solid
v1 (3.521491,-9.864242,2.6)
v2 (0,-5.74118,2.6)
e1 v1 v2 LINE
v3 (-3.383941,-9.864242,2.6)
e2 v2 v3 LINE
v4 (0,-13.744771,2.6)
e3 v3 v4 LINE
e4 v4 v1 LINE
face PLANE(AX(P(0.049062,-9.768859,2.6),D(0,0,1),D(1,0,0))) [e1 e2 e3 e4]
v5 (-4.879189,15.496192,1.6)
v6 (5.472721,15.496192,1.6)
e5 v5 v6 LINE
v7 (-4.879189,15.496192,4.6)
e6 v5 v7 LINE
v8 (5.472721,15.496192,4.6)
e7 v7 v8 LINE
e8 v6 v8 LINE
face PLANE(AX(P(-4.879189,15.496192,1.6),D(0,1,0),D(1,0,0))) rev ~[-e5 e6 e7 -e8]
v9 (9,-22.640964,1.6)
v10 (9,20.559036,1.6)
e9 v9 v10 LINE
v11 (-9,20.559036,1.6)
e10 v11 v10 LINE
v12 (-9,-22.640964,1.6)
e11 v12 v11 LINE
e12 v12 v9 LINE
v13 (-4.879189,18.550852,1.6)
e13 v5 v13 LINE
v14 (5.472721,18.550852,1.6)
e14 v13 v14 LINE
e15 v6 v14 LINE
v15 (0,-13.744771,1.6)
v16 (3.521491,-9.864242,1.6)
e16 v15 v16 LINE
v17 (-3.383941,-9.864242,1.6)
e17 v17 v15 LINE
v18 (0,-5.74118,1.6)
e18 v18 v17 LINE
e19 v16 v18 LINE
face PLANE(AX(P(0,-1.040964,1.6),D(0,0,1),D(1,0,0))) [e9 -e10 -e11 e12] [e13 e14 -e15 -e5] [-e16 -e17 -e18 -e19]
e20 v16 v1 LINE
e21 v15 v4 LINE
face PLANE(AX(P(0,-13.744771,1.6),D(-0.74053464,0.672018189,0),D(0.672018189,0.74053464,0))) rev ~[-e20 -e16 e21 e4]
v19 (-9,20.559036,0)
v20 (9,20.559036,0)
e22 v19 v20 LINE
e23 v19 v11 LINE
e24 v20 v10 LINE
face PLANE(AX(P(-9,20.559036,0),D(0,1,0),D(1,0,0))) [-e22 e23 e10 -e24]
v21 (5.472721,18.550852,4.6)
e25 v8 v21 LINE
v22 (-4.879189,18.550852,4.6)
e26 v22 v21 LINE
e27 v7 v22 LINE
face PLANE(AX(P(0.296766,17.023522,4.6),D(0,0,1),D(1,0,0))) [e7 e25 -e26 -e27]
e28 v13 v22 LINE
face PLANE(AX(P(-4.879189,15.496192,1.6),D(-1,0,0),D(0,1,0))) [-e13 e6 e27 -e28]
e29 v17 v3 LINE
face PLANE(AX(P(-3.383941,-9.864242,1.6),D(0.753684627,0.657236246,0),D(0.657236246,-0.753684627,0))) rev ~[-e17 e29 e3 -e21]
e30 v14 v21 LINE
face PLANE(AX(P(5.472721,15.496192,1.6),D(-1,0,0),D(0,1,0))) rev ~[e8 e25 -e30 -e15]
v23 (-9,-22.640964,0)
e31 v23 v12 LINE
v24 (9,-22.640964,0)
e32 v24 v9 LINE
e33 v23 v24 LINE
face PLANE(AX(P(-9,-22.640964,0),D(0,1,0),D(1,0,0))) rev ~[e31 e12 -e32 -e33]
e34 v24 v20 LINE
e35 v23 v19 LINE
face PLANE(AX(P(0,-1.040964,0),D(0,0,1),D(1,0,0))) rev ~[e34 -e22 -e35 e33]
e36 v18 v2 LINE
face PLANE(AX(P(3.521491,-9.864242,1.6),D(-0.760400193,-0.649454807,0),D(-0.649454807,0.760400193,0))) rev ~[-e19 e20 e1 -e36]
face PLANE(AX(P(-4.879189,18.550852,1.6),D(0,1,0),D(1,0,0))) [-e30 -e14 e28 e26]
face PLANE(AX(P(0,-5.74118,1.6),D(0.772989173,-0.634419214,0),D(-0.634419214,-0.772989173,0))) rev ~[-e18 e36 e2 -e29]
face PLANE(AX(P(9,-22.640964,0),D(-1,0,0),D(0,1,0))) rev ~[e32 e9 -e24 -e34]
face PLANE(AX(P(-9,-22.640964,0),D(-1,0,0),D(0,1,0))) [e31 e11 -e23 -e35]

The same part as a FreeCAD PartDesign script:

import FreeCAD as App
import Part
import Sketcher

V = App.Vector

doc = App.newDocument("Part")
body = doc.addObject("PartDesign::Body", "Body")

# Sketch on XY plane
sketch1 = doc.addObject("Sketcher::SketchObject", "Sketch")
body.addObject(sketch1)
sketch1.AttachmentSupport = (doc.XY_Plane, [""])
sketch1.MapMode = "FlatFace"
sketch1.addGeometry(Part.LineSegment(V(-9, 20.559036, 0), V(-9, -22.640964, 0)), False)
sketch1.addGeometry(Part.LineSegment(V(-9, -22.640964, 0), V(9, -22.640964, 0)), False)
sketch1.addGeometry(Part.LineSegment(V(9, -22.640964, 0), V(9, 20.559036, 0)), False)
sketch1.addGeometry(Part.LineSegment(V(9, 20.559036, 0), V(-9, 20.559036, 0)), False)
sketch1.addConstraint(Sketcher.Constraint("Coincident", 0, 2, 1, 1))
sketch1.addConstraint(Sketcher.Constraint("Coincident", 1, 2, 2, 1))
sketch1.addConstraint(Sketcher.Constraint("Coincident", 2, 2, 3, 1))
sketch1.addConstraint(Sketcher.Constraint("Coincident", 3, 2, 0, 1))
sketch1.addConstraint(Sketcher.Constraint("Vertical", 0))
sketch1.addConstraint(Sketcher.Constraint("Horizontal", 1))
sketch1.addConstraint(Sketcher.Constraint("Vertical", 2))
sketch1.addConstraint(Sketcher.Constraint("Horizontal", 3))
sketch1.addConstraint(Sketcher.Constraint("DistanceX", 1, 1, 1, 2, 18.0))
sketch1.addConstraint(Sketcher.Constraint("DistanceY", 0, 2, 0, 1, 43.2))
sketch1.addConstraint(Sketcher.Constraint("DistanceX", 0, 2, -1, 1, 9.0))
sketch1.addConstraint(Sketcher.Constraint("DistanceY", 0, 2, -1, 1, 22.640964))
pad1 = doc.addObject("PartDesign::Pad", "Pad")
body.addObject(pad1)
pad1.Profile = sketch1
pad1.Length = 1.6

# Sketch on XY plane
sketch2 = doc.addObject("Sketcher::SketchObject", "Sketch001")
body.addObject(sketch2)
sketch2.AttachmentSupport = (doc.XY_Plane, [""])
sketch2.MapMode = "FlatFace"
sketch2.AttachmentOffset = App.Placement(V(0, 0, 1.6), App.Rotation())
sketch2.addGeometry(Part.LineSegment(V(-3.383941, -9.864242, 0), V(0, -13.744771, 0)), False)
sketch2.addGeometry(Part.LineSegment(V(0, -13.744771, 0), V(3.521491, -9.864242, 0)), False)
sketch2.addGeometry(Part.LineSegment(V(3.521491, -9.864242, 0), V(0, -5.74118, 0)), False)
sketch2.addGeometry(Part.LineSegment(V(0, -5.74118, 0), V(-3.383941, -9.864242, 0)), False)
sketch2.addConstraint(Sketcher.Constraint("Coincident", 0, 2, 1, 1))
sketch2.addConstraint(Sketcher.Constraint("Coincident", 1, 2, 2, 1))
sketch2.addConstraint(Sketcher.Constraint("Coincident", 2, 2, 3, 1))
sketch2.addConstraint(Sketcher.Constraint("Coincident", 3, 2, 0, 1))
sketch2.addConstraint(Sketcher.Constraint("PointOnObject", 0, 2, -2))
sketch2.addConstraint(Sketcher.Constraint("PointOnObject", 2, 2, -2))
sketch2.addConstraint(Sketcher.Constraint("Horizontal", 1, 2, 3, 2))
sketch2.addConstraint(Sketcher.Constraint("Distance", 3, 5.333919))
sketch2.addConstraint(Sketcher.Constraint("DistanceY", 0, 2, -1, 1, 13.744771))
sketch2.addConstraint(Sketcher.Constraint("DistanceX", -1, 1, 1, 2, 3.521491))
sketch2.addConstraint(Sketcher.Constraint("DistanceY", 2, 2, -1, 1, 5.74118))
sketch2.addConstraint(Sketcher.Constraint("DistanceX", 3, 2, -1, 1, 3.383941))
pad2 = doc.addObject("PartDesign::Pad", "Pad001")
body.addObject(pad2)
pad2.Profile = sketch2
pad2.Length = 1

# Sketch on XY plane
sketch3 = doc.addObject("Sketcher::SketchObject", "Sketch002")
body.addObject(sketch3)
sketch3.AttachmentSupport = (doc.XY_Plane, [""])
sketch3.MapMode = "FlatFace"
sketch3.AttachmentOffset = App.Placement(V(0, 0, 1.6), App.Rotation())
sketch3.addGeometry(Part.LineSegment(V(-4.879189, 18.550852, 0), V(-4.879189, 15.496192, 0)), False)
sketch3.addGeometry(Part.LineSegment(V(-4.879189, 15.496192, 0), V(5.472721, 15.496192, 0)), False)
sketch3.addGeometry(Part.LineSegment(V(5.472721, 15.496192, 0), V(5.472721, 18.550852, 0)), False)
sketch3.addGeometry(Part.LineSegment(V(5.472721, 18.550852, 0), V(-4.879189, 18.550852, 0)), False)
sketch3.addConstraint(Sketcher.Constraint("Coincident", 0, 2, 1, 1))
sketch3.addConstraint(Sketcher.Constraint("Coincident", 1, 2, 2, 1))
sketch3.addConstraint(Sketcher.Constraint("Coincident", 2, 2, 3, 1))
sketch3.addConstraint(Sketcher.Constraint("Coincident", 3, 2, 0, 1))
sketch3.addConstraint(Sketcher.Constraint("Vertical", 0))
sketch3.addConstraint(Sketcher.Constraint("Horizontal", 1))
sketch3.addConstraint(Sketcher.Constraint("Vertical", 2))
sketch3.addConstraint(Sketcher.Constraint("Horizontal", 3))
sketch3.addConstraint(Sketcher.Constraint("DistanceX", 1, 1, 1, 2, 10.35191))
sketch3.addConstraint(Sketcher.Constraint("DistanceY", 0, 2, 0, 1, 3.05466))
sketch3.addConstraint(Sketcher.Constraint("DistanceX", 0, 2, -1, 1, 4.879189))
sketch3.addConstraint(Sketcher.Constraint("DistanceY", -1, 1, 2, 2, 18.550852))
pad3 = doc.addObject("PartDesign::Pad", "Pad002")
body.addObject(pad3)
pad3.Profile = sketch3
pad3.Length = 3

doc.recompute()
